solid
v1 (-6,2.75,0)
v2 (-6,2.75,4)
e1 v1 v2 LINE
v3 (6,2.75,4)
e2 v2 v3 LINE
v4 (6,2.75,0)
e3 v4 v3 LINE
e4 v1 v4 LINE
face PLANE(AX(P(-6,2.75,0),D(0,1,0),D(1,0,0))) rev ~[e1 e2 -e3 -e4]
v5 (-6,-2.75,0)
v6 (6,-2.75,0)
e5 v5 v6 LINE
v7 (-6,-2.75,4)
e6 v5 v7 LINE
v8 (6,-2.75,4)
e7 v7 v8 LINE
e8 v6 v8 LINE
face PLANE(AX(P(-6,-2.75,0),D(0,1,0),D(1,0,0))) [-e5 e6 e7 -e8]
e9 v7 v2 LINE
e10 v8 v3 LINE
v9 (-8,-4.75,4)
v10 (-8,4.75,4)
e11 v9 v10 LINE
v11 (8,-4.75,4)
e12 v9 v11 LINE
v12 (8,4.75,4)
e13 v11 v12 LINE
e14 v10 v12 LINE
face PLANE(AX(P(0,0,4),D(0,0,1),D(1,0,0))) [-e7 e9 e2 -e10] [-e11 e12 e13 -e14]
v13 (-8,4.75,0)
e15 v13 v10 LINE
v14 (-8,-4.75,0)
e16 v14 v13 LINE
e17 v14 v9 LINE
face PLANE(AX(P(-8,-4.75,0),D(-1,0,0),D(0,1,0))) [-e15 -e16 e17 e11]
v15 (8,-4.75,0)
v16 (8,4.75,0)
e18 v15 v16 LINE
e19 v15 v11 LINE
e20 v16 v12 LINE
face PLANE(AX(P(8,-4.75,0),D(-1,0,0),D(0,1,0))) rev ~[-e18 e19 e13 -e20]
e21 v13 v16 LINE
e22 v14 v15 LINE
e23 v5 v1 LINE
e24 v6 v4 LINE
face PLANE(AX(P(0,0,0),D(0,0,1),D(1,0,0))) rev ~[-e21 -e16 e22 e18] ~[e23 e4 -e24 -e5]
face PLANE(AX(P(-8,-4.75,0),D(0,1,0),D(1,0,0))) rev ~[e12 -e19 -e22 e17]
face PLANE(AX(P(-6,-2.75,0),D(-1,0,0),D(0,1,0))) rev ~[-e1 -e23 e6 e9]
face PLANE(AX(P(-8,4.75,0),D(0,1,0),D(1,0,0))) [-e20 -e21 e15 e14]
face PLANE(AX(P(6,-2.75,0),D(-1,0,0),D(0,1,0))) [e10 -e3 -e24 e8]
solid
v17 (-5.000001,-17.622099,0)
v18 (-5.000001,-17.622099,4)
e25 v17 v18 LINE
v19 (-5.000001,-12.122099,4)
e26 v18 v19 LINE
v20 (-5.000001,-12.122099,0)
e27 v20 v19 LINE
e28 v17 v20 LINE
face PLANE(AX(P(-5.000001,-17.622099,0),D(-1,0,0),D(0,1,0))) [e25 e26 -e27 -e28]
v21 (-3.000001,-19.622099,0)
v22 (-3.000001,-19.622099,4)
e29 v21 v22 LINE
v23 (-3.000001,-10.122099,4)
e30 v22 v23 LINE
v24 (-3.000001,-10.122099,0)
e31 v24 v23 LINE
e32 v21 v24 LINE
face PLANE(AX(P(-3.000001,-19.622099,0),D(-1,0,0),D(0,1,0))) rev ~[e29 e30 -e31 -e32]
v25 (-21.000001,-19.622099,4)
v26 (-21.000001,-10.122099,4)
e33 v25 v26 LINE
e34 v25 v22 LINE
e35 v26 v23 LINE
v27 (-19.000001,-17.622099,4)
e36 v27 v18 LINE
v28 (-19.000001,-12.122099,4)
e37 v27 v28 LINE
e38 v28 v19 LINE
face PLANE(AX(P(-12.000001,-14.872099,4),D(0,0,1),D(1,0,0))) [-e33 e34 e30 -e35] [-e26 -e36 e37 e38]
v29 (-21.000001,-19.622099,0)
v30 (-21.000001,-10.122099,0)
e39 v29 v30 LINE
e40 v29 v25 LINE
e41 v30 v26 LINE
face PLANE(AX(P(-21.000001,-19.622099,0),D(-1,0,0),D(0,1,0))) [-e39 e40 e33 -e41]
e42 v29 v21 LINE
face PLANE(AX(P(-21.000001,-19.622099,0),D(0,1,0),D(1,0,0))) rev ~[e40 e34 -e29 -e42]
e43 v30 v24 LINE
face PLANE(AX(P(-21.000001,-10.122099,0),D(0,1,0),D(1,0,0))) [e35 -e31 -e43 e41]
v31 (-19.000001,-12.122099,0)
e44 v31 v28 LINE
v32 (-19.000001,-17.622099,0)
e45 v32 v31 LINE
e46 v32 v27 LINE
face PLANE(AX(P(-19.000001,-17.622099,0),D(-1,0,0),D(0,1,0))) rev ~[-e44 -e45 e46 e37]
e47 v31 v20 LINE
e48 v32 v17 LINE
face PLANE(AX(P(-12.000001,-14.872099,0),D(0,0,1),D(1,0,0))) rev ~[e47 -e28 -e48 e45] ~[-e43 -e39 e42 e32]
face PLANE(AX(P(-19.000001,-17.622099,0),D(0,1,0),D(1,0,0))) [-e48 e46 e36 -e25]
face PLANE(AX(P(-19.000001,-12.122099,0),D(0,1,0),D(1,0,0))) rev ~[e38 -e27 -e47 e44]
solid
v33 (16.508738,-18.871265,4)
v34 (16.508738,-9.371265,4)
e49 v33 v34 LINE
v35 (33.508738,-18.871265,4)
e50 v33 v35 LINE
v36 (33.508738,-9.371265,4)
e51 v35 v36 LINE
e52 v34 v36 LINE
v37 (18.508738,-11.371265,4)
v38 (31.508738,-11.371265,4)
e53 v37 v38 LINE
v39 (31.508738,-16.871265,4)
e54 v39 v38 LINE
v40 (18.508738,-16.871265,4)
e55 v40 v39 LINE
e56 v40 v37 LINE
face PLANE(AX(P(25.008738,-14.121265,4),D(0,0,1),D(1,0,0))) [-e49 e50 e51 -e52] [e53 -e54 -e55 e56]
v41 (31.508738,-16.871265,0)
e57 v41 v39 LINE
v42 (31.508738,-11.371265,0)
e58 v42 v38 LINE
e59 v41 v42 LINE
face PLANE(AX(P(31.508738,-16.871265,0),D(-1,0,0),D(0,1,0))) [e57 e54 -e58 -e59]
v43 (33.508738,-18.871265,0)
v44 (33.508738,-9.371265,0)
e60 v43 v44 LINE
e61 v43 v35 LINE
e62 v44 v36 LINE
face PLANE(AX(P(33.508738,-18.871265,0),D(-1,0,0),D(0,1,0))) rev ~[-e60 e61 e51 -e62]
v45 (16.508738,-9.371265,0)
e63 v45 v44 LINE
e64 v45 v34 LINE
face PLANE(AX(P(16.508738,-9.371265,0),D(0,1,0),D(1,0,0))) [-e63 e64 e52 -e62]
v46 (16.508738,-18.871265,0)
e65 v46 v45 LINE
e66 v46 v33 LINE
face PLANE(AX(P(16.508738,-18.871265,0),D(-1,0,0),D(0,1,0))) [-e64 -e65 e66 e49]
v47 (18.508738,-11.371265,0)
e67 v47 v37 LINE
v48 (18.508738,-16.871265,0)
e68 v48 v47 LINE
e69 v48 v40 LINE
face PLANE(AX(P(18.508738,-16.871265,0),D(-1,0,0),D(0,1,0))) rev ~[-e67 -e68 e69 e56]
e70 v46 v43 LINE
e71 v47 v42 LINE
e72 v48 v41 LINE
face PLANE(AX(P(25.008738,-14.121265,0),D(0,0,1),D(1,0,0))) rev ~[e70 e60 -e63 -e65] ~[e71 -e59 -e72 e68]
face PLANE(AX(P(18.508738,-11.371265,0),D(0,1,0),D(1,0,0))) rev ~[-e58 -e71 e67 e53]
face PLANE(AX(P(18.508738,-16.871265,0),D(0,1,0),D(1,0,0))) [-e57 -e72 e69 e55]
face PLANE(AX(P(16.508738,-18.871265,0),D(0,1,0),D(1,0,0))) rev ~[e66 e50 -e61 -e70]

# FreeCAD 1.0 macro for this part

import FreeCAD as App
import Part
import Sketcher

doc = App.newDocument("Part")
body = doc.addObject("PartDesign::Body", "Body")
body.AllowCompound = True

# Sketch on XY plane
sketch1 = body.newObject("Sketcher::SketchObject", "Sketch")
sketch1.AttachmentSupport = (doc.getObject("XY_Plane"), [""])
sketch1.MapMode = "FlatFace"
sketch1.addGeometry(Part.LineSegment(App.Vector(-21, -10, 0), App.Vector(-21, -20, 0)), False)
sketch1.addGeometry(Part.LineSegment(App.Vector(-21, -20, 0), App.Vector(-3, -20, 0)), False)
sketch1.addGeometry(Part.LineSegment(App.Vector(-3, -20, 0), App.Vector(-3, -10, 0)), False)
sketch1.addGeometry(Part.LineSegment(App.Vector(-3, -10, 0), App.Vector(-21, -10, 0)), False)
sketch1.addGeometry(Part.LineSegment(App.Vector(-5, -18, 0), App.Vector(-19, -18, 0)), False)
sketch1.addGeometry(Part.LineSegment(App.Vector(-19, -18, 0), App.Vector(-19, -12, 0)), False)
sketch1.addGeometry(Part.LineSegment(App.Vector(-19, -12, 0), App.Vector(-5, -12, 0)), False)
sketch1.addGeometry(Part.LineSegment(App.Vector(-5, -12, 0), App.Vector(-5, -18, 0)), False)
sketch1.addGeometry(Part.LineSegment(App.Vector(-8, 5, 0), App.Vector(-8, -5, 0)), False)
sketch1.addGeometry(Part.LineSegment(App.Vector(-8, -5, 0), App.Vector(8, -5, 0)), False)
sketch1.addGeometry(Part.LineSegment(App.Vector(8, -5, 0), App.Vector(8, 5, 0)), False)
sketch1.addGeometry(Part.LineSegment(App.Vector(8, 5, 0), App.Vector(-8, 5, 0)), False)
sketch1.addGeometry(Part.LineSegment(App.Vector(6, -3, 0), App.Vector(-6, -3, 0)), False)
sketch1.addGeometry(Part.LineSegment(App.Vector(-6, -3, 0), App.Vector(-6, 3, 0)), False)
sketch1.addGeometry(Part.LineSegment(App.Vector(-6, 3, 0), App.Vector(6, 3, 0)), False)
sketch1.addGeometry(Part.LineSegment(App.Vector(6, 3, 0), App.Vector(6, -3, 0)), False)
sketch1.addGeometry(Part.LineSegment(App.Vector(17, -9, 0), App.Vector(17, -19, 0)), False)
sketch1.addGeometry(Part.LineSegment(App.Vector(17, -19, 0), App.Vector(34, -19, 0)), False)
sketch1.addGeometry(Part.LineSegment(App.Vector(34, -19, 0), App.Vector(34, -9, 0)), False)
sketch1.addGeometry(Part.LineSegment(App.Vector(34, -9, 0), App.Vector(17, -9, 0)), False)
sketch1.addGeometry(Part.LineSegment(App.Vector(32, -17, 0), App.Vector(19, -17, 0)), False)
sketch1.addGeometry(Part.LineSegment(App.Vector(19, -17, 0), App.Vector(19, -11, 0)), False)
sketch1.addGeometry(Part.LineSegment(App.Vector(19, -11, 0), App.Vector(32, -11, 0)), False)
sketch1.addGeometry(Part.LineSegment(App.Vector(32, -11, 0), App.Vector(32, -17, 0)), False)
sketch1.addConstraint(Sketcher.Constraint("Coincident", 0, 2, 1, 1))
sketch1.addConstraint(Sketcher.Constraint("Coincident", 1, 2, 2, 1))
sketch1.addConstraint(Sketcher.Constraint("Coincident", 2, 2, 3, 1))
sketch1.addConstraint(Sketcher.Constraint("Coincident", 3, 2, 0, 1))
sketch1.addConstraint(Sketcher.Constraint("Coincident", 4, 2, 5, 1))
sketch1.addConstraint(Sketcher.Constraint("Coincident", 5, 2, 6, 1))
sketch1.addConstraint(Sketcher.Constraint("Coincident", 6, 2, 7, 1))
sketch1.addConstraint(Sketcher.Constraint("Coincident", 7, 2, 4, 1))
sketch1.addConstraint(Sketcher.Constraint("Coincident", 8, 2, 9, 1))
sketch1.addConstraint(Sketcher.Constraint("Coincident", 9, 2, 10, 1))
sketch1.addConstraint(Sketcher.Constraint("Coincident", 10, 2, 11, 1))
sketch1.addConstraint(Sketcher.Constraint("Coincident", 11, 2, 8, 1))
sketch1.addConstraint(Sketcher.Constraint("Coincident", 12, 2, 13, 1))
sketch1.addConstraint(Sketcher.Constraint("Coincident", 13, 2, 14, 1))
sketch1.addConstraint(Sketcher.Constraint("Coincident", 14, 2, 15, 1))
sketch1.addConstraint(Sketcher.Constraint("Coincident", 15, 2, 12, 1))
sketch1.addConstraint(Sketcher.Constraint("Coincident", 16, 2, 17, 1))
sketch1.addConstraint(Sketcher.Constraint("Coincident", 17, 2, 18, 1))
sketch1.addConstraint(Sketcher.Constraint("Coincident", 18, 2, 19, 1))
sketch1.addConstraint(Sketcher.Constraint("Coincident", 19, 2, 16, 1))
sketch1.addConstraint(Sketcher.Constraint("Coincident", 20, 2, 21, 1))
sketch1.addConstraint(Sketcher.Constraint("Coincident", 21, 2, 22, 1))
sketch1.addConstraint(Sketcher.Constraint("Coincident", 22, 2, 23, 1))
sketch1.addConstraint(Sketcher.Constraint("Coincident", 23, 2, 20, 1))
sketch1.addConstraint(Sketcher.Constraint("Vertical", 0))
sketch1.addConstraint(Sketcher.Constraint("Horizontal", 1))
sketch1.addConstraint(Sketcher.Constraint("Vertical", 2))
sketch1.addConstraint(Sketcher.Constraint("Horizontal", 3))
sketch1.addConstraint(Sketcher.Constraint("Horizontal", 4))
sketch1.addConstraint(Sketcher.Constraint("Vertical", 5))
sketch1.addConstraint(Sketcher.Constraint("Horizontal", 6))
sketch1.addConstraint(Sketcher.Constraint("Vertical", 7))
sketch1.addConstraint(Sketcher.Constraint("Vertical", 8))
sketch1.addConstraint(Sketcher.Constraint("Horizontal", 9))
sketch1.addConstraint(Sketcher.Constraint("Vertical", 10))
sketch1.addConstraint(Sketcher.Constraint("Horizontal", 11))
sketch1.addConstraint(Sketcher.Constraint("Horizontal", 12))
sketch1.addConstraint(Sketcher.Constraint("Vertical", 13))
sketch1.addConstraint(Sketcher.Constraint("Horizontal", 14))
sketch1.addConstraint(Sketcher.Constraint("Vertical", 15))
sketch1.addConstraint(Sketcher.Constraint("Vertical", 16))
sketch1.addConstraint(Sketcher.Constraint("Horizontal", 17))
sketch1.addConstraint(Sketcher.Constraint("Vertical", 18))
sketch1.addConstraint(Sketcher.Constraint("Horizontal", 19))
sketch1.addConstraint(Sketcher.Constraint("Horizontal", 20))
sketch1.addConstraint(Sketcher.Constraint("Vertical", 21))
sketch1.addConstraint(Sketcher.Constraint("Horizontal", 22))
sketch1.addConstraint(Sketcher.Constraint("Vertical", 23))
sketch1.addConstraint(Sketcher.Constraint("Symmetric", 8, 2, 10, 2, -1, 1))
sketch1.addConstraint(Sketcher.Constraint("Symmetric", 12, 2, 14, 2, -1, 1))
sketch1.addConstraint(Sketcher.Constraint("Equal", 2, 8))
sketch1.addConstraint(Sketcher.Constraint("Equal", 7, 13))
sketch1.addConstraint(Sketcher.Constraint("Equal", 10, 16))
sketch1.addConstraint(Sketcher.Constraint("Equal", 15, 21))
sketch1.addConstraint(Sketcher.Constraint("DistanceX", 1, 1, 1, 2, 18.0))
sketch1.addConstraint(Sketcher.Constraint("DistanceX", 4, 2, 4, 1, 14.0))
sketch1.addConstraint(Sketcher.Constraint("DistanceX", 9, 1, 9, 2, 16.0))
sketch1.addConstraint(Sketcher.Constraint("DistanceX", 12, 2, 12, 1, 12.0))
sketch1.addConstraint(Sketcher.Constraint("DistanceX", 17, 1, 17, 2, 17.0))
sketch1.addConstraint(Sketcher.Constraint("DistanceX", 20, 2, 20, 1, 13.0))
sketch1.addConstraint(Sketcher.Constraint("DistanceY", 0, 2, 0, 1, 9.5))
sketch1.addConstraint(Sketcher.Constraint("DistanceY", 5, 1, 5, 2, 5.5))
sketch1.addConstraint(Sketcher.Constraint("DistanceX", 0, 2, -1, 1, 21.000001))
sketch1.addConstraint(Sketcher.Constraint("DistanceX", 4, 2, -1, 1, 19.000001))
sketch1.addConstraint(Sketcher.Constraint("DistanceY", 0, 2, 4, 2, 2.0))
sketch1.addConstraint(Sketcher.Constraint("DistanceX", 16, 2, 20, 2, 2.0))
sketch1.addConstraint(Sketcher.Constraint("DistanceY", 16, 2, 20, 2, 2.0))
sketch1.addConstraint(Sketcher.Constraint("DistanceY", 0, 2, -1, 1, 19.622099))
sketch1.addConstraint(Sketcher.Constraint("DistanceX", -1, 1, 16, 2, 16.508738))
sketch1.addConstraint(Sketcher.Constraint("DistanceY", 16, 2, -1, 1, 18.871265))
pad1 = body.newObject("PartDesign::Pad", "Pad")
pad1.Profile = sketch1
pad1.Length = 4

doc.recompute()
